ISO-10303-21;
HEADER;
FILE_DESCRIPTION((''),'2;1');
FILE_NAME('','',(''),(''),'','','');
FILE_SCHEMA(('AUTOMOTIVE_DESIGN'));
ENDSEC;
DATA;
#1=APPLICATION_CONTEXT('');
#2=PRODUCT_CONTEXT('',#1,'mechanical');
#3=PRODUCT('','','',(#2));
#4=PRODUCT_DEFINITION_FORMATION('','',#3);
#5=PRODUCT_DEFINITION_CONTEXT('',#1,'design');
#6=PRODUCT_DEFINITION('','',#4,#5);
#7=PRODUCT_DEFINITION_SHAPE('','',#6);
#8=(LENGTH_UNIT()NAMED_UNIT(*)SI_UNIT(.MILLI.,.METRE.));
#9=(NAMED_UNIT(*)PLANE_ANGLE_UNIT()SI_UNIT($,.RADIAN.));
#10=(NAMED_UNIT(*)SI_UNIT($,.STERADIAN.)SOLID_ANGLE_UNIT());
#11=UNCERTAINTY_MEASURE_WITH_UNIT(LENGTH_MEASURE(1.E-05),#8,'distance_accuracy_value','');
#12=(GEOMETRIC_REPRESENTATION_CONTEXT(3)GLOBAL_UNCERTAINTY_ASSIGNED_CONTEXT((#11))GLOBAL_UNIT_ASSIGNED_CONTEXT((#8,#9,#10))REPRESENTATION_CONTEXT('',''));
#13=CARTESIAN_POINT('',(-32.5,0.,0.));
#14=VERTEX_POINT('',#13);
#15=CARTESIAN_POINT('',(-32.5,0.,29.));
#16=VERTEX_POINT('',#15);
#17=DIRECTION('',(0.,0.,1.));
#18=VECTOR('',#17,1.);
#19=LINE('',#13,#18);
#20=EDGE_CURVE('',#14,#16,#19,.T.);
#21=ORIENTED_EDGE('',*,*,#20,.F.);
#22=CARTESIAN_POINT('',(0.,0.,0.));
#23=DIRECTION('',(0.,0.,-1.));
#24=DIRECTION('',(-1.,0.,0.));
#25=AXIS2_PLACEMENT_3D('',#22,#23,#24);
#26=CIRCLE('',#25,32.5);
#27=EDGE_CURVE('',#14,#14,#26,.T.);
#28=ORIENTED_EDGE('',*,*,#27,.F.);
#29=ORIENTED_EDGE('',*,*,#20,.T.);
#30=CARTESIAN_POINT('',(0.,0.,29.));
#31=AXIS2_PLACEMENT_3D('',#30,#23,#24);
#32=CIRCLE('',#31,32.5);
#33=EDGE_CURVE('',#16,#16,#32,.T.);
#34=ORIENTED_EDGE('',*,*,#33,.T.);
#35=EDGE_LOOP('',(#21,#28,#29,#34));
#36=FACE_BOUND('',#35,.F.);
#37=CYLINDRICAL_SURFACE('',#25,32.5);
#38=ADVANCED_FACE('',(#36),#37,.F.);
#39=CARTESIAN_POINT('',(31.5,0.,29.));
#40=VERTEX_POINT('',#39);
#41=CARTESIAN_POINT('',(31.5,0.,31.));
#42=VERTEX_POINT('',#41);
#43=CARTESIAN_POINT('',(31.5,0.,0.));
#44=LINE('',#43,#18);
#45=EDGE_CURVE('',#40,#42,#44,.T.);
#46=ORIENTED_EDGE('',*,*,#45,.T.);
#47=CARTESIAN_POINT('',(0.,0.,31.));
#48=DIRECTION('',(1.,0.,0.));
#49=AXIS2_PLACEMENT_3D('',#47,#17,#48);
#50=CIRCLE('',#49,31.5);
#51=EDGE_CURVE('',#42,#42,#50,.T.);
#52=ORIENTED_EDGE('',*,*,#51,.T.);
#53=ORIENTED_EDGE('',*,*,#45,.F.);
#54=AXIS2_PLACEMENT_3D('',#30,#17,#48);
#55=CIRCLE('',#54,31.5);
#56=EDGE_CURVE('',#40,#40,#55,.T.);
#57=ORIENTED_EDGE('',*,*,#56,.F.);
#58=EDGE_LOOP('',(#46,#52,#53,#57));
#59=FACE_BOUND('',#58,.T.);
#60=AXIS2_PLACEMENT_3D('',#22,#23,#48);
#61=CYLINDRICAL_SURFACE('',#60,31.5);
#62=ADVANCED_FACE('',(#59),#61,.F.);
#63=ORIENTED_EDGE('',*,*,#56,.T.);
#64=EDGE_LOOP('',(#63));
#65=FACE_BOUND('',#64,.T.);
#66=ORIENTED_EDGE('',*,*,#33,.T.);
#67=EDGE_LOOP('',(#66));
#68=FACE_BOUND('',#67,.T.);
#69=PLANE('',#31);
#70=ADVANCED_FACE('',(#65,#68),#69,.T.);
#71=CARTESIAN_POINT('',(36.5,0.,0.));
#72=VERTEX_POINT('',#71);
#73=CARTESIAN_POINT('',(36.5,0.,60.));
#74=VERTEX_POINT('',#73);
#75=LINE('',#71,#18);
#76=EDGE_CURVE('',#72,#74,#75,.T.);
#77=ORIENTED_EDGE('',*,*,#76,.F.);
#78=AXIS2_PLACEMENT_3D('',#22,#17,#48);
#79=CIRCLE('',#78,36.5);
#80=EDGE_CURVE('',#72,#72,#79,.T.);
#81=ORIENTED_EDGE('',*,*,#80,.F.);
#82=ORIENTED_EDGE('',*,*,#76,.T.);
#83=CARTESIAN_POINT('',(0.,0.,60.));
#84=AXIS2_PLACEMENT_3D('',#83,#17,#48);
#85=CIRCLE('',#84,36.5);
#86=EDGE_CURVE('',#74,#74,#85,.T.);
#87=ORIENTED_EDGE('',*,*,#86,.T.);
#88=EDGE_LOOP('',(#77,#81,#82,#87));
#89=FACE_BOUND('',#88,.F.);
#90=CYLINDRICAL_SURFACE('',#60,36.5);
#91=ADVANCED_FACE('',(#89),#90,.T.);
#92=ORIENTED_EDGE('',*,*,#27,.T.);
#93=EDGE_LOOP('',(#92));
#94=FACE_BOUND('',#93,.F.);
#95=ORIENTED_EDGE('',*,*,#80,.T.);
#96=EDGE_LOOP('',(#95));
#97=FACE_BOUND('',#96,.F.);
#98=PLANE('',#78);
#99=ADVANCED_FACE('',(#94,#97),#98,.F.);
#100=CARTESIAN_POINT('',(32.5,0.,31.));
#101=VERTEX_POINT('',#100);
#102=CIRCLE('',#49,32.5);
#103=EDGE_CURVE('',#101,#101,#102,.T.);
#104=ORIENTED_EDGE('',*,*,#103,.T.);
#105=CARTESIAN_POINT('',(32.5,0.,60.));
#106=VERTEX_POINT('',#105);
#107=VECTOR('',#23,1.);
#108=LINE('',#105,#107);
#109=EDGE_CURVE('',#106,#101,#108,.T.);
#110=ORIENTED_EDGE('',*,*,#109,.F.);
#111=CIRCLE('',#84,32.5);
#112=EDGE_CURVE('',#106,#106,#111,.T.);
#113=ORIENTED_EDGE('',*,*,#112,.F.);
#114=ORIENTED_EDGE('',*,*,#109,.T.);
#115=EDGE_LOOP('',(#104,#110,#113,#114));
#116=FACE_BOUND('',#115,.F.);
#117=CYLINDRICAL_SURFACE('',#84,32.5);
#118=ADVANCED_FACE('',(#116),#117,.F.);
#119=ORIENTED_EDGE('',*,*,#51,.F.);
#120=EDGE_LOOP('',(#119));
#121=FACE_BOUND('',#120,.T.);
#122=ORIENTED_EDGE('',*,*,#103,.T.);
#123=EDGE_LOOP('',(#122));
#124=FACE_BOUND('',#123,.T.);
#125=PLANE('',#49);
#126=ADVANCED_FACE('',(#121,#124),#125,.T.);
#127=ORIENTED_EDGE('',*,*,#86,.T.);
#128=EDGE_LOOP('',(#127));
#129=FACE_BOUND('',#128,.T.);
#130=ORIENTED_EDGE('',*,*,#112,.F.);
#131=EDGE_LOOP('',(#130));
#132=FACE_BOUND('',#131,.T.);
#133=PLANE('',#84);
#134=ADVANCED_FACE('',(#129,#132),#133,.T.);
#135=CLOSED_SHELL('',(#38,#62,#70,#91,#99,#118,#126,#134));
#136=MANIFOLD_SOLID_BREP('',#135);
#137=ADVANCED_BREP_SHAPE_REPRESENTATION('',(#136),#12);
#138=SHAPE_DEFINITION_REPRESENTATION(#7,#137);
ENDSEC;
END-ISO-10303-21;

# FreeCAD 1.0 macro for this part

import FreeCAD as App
import Part
import Sketcher

V = App.Vector

doc = App.newDocument("Part")
body = doc.addObject("PartDesign::Body", "Body")

# Sketch on XY plane
sketch1 = body.newObject("Sketcher::SketchObject", "Sketch")
sketch1.AttachmentSupport = (doc.getObject("XY_Plane"), [""])
sketch1.MapMode = "FlatFace"
sketch1.addGeometry([
    Part.Circle(V(0, 0, 0), V(0, 0, 1), 36.5),
    Part.Circle(V(0, 0, 0), V(0, 0, 1), 31.5),
], False)
sketch1.addConstraint([
    Sketcher.Constraint("Coincident", 0, 3, -1, 1),
    Sketcher.Constraint("Coincident", 1, 3, -1, 1),
    Sketcher.Constraint("Diameter", 1, 63.0),
    Sketcher.Constraint("Diameter", 0, 73.0),
])
pad1 = body.newObject("PartDesign::Pad", "Pad")
pad1.Profile = sketch1
pad1.Length = 60

# Sketch on XY plane
sketch2 = body.newObject("Sketcher::SketchObject", "Sketch001")
sketch2.AttachmentSupport = (doc.getObject("XY_Plane"), [""])
sketch2.MapMode = "FlatFace"
sketch2.AttachmentOffset = App.Placement(V(0, 0, 60), App.Rotation())
sketch2.addGeometry([
    Part.Circle(V(0, 0, 0), V(0, 0, 1), 32.5),
    Part.Circle(V(0, 0, 0), V(0, 0, 1), 31.5),
], False)
sketch2.addConstraint([
    Sketcher.Constraint("Coincident", 0, 3, -1, 1),
    Sketcher.Constraint("Coincident", 1, 3, -1, 1),
    Sketcher.Constraint("Diameter", 0, 65.0),
    Sketcher.Constraint("Diameter", 1, 63.0),
])
pocket1 = body.newObject("PartDesign::Pocket", "Pocket")
pocket1.Profile = sketch2
pocket1.Length = 29

# Sketch on XY plane
sketch3 = body.newObject("Sketcher::SketchObject", "Sketch002")
sketch3.AttachmentSupport = (doc.getObject("XY_Plane"), [""])
sketch3.MapMode = "FlatFace"
sketch3.addGeometry([
    Part.Circle(V(0, 0, 0), V(0, 0, 1), 32.5),
    Part.Circle(V(0, 0, 0), V(0, 0, 1), 31.5),
], False)
sketch3.addConstraint([
    Sketcher.Constraint("Coincident", 0, 3, -1, 1),
    Sketcher.Constraint("Coincident", 1, 3, -1, 1),
    Sketcher.Constraint("Diameter", 0, 65.0),
    Sketcher.Constraint("Diameter", 1, 63.0),
])
pocket2 = body.newObject("PartDesign::Pocket", "Pocket001")
pocket2.Profile = sketch3
pocket2.Length = 29
pocket2.Reversed = True

doc.recompute()
